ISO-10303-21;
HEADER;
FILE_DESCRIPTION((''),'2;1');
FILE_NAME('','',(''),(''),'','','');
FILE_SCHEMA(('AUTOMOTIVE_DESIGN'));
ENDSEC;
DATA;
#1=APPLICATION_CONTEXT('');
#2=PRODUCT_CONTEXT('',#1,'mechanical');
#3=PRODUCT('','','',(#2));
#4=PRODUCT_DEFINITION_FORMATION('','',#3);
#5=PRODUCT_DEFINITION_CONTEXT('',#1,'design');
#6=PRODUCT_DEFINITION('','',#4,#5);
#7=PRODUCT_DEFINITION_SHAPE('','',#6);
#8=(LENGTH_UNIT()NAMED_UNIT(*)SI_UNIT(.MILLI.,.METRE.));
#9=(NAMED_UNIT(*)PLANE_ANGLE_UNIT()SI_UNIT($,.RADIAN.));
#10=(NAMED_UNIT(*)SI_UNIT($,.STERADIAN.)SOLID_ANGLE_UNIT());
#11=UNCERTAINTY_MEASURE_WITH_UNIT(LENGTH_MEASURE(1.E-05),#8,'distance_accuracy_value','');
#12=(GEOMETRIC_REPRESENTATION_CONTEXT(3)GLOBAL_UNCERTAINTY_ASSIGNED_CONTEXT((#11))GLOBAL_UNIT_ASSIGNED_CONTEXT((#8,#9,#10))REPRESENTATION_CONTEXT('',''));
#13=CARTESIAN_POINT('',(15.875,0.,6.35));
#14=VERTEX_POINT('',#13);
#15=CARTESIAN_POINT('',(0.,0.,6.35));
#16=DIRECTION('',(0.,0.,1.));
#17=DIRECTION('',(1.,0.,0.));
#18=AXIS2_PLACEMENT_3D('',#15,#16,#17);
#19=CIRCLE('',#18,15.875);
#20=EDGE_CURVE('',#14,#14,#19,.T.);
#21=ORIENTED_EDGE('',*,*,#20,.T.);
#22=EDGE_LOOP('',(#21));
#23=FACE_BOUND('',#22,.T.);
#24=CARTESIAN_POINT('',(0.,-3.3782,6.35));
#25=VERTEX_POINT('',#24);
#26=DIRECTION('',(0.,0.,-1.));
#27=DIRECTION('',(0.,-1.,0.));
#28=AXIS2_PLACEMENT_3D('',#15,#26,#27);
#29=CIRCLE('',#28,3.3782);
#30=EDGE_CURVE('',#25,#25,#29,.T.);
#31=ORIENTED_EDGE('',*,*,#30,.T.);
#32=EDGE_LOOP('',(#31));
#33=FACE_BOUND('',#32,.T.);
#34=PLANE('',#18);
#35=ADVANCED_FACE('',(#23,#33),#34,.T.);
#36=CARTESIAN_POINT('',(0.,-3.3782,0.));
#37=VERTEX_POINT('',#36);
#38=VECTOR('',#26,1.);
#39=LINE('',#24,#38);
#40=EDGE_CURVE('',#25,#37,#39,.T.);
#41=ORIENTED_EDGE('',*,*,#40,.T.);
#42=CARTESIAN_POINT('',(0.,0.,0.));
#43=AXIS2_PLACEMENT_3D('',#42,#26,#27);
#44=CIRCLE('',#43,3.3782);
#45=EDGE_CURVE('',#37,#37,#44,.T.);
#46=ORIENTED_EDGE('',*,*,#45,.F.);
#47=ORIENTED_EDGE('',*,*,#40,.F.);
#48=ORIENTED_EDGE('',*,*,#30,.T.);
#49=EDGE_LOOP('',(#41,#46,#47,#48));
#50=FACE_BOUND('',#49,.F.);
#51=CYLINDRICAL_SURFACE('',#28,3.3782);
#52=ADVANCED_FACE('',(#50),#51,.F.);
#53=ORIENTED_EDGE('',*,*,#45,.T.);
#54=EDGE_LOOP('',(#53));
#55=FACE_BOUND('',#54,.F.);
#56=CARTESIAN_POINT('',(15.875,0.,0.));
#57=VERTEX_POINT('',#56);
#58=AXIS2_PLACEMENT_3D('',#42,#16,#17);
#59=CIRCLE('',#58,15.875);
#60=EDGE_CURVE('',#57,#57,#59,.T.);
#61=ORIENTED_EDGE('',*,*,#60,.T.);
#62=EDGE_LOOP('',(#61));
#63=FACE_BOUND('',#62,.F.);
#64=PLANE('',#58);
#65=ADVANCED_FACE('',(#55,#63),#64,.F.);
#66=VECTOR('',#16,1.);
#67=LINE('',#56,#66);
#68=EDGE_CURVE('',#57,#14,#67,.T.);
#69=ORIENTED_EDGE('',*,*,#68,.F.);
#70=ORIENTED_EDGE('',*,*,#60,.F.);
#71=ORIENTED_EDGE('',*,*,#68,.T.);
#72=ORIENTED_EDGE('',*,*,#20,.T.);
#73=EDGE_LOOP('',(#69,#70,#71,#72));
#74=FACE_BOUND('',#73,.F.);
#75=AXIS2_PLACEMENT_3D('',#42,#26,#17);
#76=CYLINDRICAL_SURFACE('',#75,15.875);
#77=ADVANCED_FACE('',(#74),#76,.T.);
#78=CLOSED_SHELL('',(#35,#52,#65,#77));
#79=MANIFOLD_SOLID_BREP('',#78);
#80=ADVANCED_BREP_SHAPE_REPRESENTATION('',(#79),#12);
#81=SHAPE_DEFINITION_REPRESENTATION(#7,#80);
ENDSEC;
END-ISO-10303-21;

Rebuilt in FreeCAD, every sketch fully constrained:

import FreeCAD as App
import Part
import Sketcher
from FreeCAD import Vector
Q = App.Units.Quantity

doc = App.newDocument("Part")
body = doc.addObject("PartDesign::Body", "Body")

# Sketch on XY plane
sketch1 = doc.addObject("Sketcher::SketchObject", "Sketch")
body.addObject(sketch1)
sketch1.AttachmentSupport = (doc.XY_Plane, [""])
sketch1.MapMode = "FlatFace"
sketch1.addGeometry(Part.Circle(Vector(0, 0, 0), Vector(0, 0, 1), 16), False)
sketch1.addConstraint(Sketcher.Constraint("Coincident", 0, 3, -1, 1))
sketch1.addConstraint(Sketcher.Constraint("Diameter", 0, Q("1.25 in")))
pad1 = doc.addObject("PartDesign::Pad", "Pad")
body.addObject(pad1)
pad1.Profile = sketch1
pad1.Length = Q("0.25 in")

# Sketch on XY plane
sketch2 = doc.addObject("Sketcher::SketchObject", "Sketch001")
body.addObject(sketch2)
sketch2.AttachmentSupport = (doc.XY_Plane, [""])
sketch2.MapMode = "FlatFace"
sketch2.AttachmentOffset = App.Placement(Vector(0, 0, 0.25 * 25.4), App.Rotation())
sketch2.addGeometry(Part.Circle(Vector(0, 0, 0), Vector(0, 0, 1), 3.4), False)
sketch2.addConstraint(Sketcher.Constraint("Coincident", 0, 3, -1, 1))
sketch2.addConstraint(Sketcher.Constraint("Diameter", 0, Q("0.266 in")))
doc.recompute()
hole = doc.addObject("PartDesign::Hole", "Hole")
body.addObject(hole)
hole.Profile = sketch2
hole.ThreadType = "None"
hole.Diameter = Q("0.266 in")
hole.DepthType = "ThroughAll"

doc.recompute()
